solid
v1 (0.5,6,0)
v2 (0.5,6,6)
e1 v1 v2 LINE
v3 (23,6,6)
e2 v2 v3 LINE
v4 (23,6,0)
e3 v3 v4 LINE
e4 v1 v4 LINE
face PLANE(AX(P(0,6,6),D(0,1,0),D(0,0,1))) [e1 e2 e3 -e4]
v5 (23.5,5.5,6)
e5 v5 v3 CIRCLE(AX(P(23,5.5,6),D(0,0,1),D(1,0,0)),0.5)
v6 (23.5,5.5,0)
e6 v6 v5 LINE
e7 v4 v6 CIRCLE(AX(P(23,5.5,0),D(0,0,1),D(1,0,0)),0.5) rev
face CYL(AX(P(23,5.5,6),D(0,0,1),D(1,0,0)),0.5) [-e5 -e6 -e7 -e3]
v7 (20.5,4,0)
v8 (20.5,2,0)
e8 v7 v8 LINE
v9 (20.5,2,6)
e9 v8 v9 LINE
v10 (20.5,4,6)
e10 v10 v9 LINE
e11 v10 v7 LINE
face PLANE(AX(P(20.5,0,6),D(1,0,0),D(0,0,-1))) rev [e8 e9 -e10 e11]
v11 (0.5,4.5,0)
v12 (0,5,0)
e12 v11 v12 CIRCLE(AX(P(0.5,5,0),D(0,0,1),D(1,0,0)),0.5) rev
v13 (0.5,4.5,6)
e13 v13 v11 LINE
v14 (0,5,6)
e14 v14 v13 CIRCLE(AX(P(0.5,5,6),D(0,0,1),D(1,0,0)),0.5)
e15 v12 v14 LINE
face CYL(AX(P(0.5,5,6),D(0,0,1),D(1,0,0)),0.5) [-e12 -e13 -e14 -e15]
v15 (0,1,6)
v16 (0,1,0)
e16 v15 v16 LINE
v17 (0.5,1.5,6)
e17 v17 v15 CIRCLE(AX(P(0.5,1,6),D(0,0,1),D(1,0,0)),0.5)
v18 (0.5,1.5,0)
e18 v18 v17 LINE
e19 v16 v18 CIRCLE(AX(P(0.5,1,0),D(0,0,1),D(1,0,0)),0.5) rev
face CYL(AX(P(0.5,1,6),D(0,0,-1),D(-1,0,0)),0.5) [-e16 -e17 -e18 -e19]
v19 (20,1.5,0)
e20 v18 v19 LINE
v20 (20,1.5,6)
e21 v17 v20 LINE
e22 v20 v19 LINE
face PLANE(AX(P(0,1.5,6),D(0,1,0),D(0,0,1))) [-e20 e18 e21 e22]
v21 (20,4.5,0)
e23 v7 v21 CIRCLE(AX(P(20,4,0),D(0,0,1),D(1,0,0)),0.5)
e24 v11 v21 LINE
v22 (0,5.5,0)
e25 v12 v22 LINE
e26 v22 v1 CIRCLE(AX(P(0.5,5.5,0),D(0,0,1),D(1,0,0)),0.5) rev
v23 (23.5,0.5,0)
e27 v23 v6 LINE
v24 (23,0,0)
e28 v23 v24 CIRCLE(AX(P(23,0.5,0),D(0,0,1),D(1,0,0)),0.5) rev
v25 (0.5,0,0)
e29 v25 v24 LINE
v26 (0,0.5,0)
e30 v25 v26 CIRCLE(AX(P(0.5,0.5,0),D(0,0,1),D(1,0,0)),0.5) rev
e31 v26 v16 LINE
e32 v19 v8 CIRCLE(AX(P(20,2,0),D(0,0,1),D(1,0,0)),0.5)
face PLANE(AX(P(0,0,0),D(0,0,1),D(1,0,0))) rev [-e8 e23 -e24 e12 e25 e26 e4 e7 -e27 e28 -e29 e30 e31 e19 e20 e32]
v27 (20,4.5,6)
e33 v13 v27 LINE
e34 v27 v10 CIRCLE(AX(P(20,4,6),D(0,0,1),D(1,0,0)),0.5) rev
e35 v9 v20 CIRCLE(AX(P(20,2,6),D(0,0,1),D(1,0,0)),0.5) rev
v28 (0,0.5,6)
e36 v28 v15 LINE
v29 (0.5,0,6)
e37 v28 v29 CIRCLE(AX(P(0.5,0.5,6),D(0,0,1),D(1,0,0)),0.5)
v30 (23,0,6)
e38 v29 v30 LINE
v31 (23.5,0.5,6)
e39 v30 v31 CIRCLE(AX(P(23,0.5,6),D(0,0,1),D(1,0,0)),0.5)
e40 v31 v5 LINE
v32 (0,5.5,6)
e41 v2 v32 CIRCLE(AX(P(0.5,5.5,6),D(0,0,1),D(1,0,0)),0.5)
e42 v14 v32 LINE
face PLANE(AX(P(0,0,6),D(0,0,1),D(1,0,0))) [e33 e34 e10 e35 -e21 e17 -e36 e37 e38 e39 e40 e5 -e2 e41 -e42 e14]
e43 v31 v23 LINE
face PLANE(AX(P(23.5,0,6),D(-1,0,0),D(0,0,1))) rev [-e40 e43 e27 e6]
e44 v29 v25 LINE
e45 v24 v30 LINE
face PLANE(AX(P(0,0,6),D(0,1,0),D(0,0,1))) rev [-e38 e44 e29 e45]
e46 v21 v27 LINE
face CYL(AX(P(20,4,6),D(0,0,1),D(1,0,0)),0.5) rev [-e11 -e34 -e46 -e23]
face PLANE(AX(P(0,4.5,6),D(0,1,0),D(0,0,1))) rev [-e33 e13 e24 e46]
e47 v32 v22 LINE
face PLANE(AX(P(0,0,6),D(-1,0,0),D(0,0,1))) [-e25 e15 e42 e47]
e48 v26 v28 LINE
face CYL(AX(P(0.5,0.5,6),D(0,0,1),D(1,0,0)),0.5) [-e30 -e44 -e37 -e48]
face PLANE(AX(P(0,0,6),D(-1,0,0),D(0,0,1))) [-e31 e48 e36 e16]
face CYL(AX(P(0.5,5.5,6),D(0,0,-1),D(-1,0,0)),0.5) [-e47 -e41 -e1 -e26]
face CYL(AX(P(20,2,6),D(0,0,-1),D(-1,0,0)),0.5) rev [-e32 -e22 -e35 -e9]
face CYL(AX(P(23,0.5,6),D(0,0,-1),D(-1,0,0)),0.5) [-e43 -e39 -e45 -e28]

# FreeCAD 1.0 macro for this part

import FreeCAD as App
import Part
import Sketcher
from FreeCAD import Vector
Q = App.Units.Quantity


def edges_at(feature, points):
    """Names of the edges that pass closest to the given points."""
    edges = feature.Shape.Edges
    near = lambda p: min(range(len(edges)), key=lambda i: edges[i].distToShape(Part.Vertex(*p))[0])
    return sorted({f"Edge{near(p) + 1}" for p in points})

doc = App.newDocument("Part")
params = doc.addObject("Spreadsheet::Sheet", "Params")
for row, (alias, value) in enumerate([
    ("sketch1_height", "6 mm"),
    ("sketch1_height2", "3 mm"),
    ("sketch1_width", "23.5 mm"),
    ("sketch1_width2", "20.5 mm"),
    ("pad1_length", "6 mm"),
    ("fillet_radius", "0.5 mm"),
], start=1):
    params.set(f"A{row}", alias)
    params.set(f"B{row}", "=" + value)
    params.setAlias(f"B{row}", alias)

body = doc.addObject("PartDesign::Body", "Body")

# Sketch on XY plane
sketch1 = body.newObject("Sketcher::SketchObject", "Sketch")
sketch1.AttachmentSupport = (doc.getObject("XY_Plane"), [""])
sketch1.MapMode = "FlatFace"
sketch1.addGeometry(Part.LineSegment(Vector(0, 1.5, 0), Vector(0, 0, 0)), False)
sketch1.addGeometry(Part.LineSegment(Vector(0, 0, 0), Vector(23.5, 0, 0)), False)
sketch1.addGeometry(Part.LineSegment(Vector(23.5, 0, 0), Vector(23.5, 6, 0)), False)
sketch1.addGeometry(Part.LineSegment(Vector(23.5, 6, 0), Vector(0, 6, 0)), False)
sketch1.addGeometry(Part.LineSegment(Vector(0, 6, 0), Vector(0, 4.5, 0)), False)
sketch1.addGeometry(Part.LineSegment(Vector(0, 4.5, 0), Vector(20.5, 4.5, 0)), False)
sketch1.addGeometry(Part.LineSegment(Vector(20.5, 4.5, 0), Vector(20.5, 1.5, 0)), False)
sketch1.addGeometry(Part.LineSegment(Vector(20.5, 1.5, 0), Vector(0, 1.5, 0)), False)
sketch1.addConstraint(Sketcher.Constraint("Coincident", 0, 2, 1, 1))
sketch1.addConstraint(Sketcher.Constraint("Coincident", 1, 2, 2, 1))
sketch1.addConstraint(Sketcher.Constraint("Coincident", 2, 2, 3, 1))
sketch1.addConstraint(Sketcher.Constraint("Coincident", 3, 2, 4, 1))
sketch1.addConstraint(Sketcher.Constraint("Coincident", 4, 2, 5, 1))
sketch1.addConstraint(Sketcher.Constraint("Coincident", 5, 2, 6, 1))
sketch1.addConstraint(Sketcher.Constraint("Coincident", 6, 2, 7, 1))
sketch1.addConstraint(Sketcher.Constraint("Coincident", 7, 2, 0, 1))
sketch1.addConstraint(Sketcher.Constraint("Vertical", 0))
sketch1.addConstraint(Sketcher.Constraint("Horizontal", 1))
sketch1.addConstraint(Sketcher.Constraint("Vertical", 2))
sketch1.addConstraint(Sketcher.Constraint("Horizontal", 3))
sketch1.addConstraint(Sketcher.Constraint("Vertical", 4))
sketch1.addConstraint(Sketcher.Constraint("Horizontal", 5))
sketch1.addConstraint(Sketcher.Constraint("Vertical", 6))
sketch1.addConstraint(Sketcher.Constraint("Horizontal", 7))
sketch1.addConstraint(Sketcher.Constraint("Coincident", 0, 2, -1, 1))
sketch1.addConstraint(Sketcher.Constraint("PointOnObject", 3, 2, -2))
sketch1.addConstraint(Sketcher.Constraint("Equal", 0, 4))
sketch1.addConstraint(Sketcher.Constraint("DistanceY", 2, 1, 2, 2, Q("6 mm")))
sketch1.addConstraint(Sketcher.Constraint("DistanceY", 6, 2, 6, 1, Q("3 mm")))
sketch1.addConstraint(Sketcher.Constraint("DistanceX", 1, 1, 1, 2, Q("23.5 mm")))
sketch1.addConstraint(Sketcher.Constraint("DistanceX", 5, 1, 5, 2, Q("20.5 mm")))
sketch1.setExpression("Constraints[19]", "Params.sketch1_height")
sketch1.setExpression("Constraints[20]", "Params.sketch1_height2")
sketch1.setExpression("Constraints[21]", "Params.sketch1_width")
sketch1.setExpression("Constraints[22]", "Params.sketch1_width2")
pad1 = body.newObject("PartDesign::Pad", "Pad")
pad1.Profile = sketch1
pad1.setExpression("Length", "Params.pad1_length")
doc.recompute()

fillet = body.newObject("PartDesign::Fillet", "Fillet")
fillet.Base = (pad1, edges_at(pad1, [
    (0, 4.5, 3),
    (0, 6, 3),
    (23.5, 6, 3),
    (23.5, 0, 3),
    (0, 0, 3),
    (0, 1.5, 3),
    (20.5, 1.5, 3),
    (20.5, 4.5, 3),
]))
fillet.setExpression("Radius", "Params.fillet_radius")

doc.recompute()
